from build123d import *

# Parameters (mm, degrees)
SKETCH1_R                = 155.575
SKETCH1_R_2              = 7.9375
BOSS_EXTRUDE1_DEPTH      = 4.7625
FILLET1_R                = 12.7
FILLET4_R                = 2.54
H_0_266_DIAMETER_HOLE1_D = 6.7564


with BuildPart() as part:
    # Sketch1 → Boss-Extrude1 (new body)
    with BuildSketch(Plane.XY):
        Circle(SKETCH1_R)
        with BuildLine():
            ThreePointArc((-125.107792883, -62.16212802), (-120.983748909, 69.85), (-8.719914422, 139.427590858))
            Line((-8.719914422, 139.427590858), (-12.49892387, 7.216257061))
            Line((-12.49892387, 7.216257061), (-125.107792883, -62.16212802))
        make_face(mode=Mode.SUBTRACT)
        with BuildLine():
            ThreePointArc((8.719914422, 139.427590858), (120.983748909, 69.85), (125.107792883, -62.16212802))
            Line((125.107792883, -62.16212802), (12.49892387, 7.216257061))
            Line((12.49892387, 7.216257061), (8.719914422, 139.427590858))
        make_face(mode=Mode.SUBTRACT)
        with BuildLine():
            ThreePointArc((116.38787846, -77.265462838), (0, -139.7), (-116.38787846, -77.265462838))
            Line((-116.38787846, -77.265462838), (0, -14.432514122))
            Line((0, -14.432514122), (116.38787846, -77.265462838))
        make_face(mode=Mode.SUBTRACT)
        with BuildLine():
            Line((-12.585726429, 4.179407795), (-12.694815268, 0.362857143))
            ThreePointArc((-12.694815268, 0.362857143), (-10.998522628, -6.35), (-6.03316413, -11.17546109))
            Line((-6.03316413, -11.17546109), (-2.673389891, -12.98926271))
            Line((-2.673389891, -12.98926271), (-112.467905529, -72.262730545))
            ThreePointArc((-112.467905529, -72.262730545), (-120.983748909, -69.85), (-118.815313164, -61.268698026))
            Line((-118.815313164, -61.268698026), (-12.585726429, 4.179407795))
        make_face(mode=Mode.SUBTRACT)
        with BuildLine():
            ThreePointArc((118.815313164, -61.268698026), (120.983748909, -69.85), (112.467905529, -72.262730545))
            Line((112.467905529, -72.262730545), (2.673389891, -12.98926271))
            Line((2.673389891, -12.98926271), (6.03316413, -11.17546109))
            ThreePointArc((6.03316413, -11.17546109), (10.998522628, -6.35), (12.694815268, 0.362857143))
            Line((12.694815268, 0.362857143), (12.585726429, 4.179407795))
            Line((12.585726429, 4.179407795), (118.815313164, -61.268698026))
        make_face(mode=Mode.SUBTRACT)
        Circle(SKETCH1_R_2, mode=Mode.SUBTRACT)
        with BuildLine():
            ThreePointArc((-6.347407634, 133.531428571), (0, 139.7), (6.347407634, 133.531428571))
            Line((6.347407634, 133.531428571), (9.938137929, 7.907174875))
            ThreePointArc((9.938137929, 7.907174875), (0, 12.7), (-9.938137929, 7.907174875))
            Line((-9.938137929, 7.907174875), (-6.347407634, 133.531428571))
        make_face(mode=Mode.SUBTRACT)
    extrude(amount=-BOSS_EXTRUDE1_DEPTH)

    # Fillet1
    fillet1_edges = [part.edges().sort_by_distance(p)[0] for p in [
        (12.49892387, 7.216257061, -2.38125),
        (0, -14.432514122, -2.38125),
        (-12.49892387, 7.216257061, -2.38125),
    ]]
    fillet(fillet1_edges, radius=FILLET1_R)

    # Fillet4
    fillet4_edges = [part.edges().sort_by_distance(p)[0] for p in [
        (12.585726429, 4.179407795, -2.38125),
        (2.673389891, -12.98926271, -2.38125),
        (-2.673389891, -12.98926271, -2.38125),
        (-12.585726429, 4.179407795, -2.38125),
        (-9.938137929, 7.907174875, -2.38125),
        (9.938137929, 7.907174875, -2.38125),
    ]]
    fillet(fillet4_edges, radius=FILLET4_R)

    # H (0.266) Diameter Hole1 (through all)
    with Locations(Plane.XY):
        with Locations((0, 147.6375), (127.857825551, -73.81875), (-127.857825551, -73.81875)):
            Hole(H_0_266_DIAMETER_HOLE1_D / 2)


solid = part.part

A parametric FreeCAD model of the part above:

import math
import FreeCAD as App
import Part
import Sketcher

V = App.Vector
Q = App.Units.Quantity


def edges_at(feature, points):
    """Names of the edges that pass closest to the given points."""
    edges = feature.Shape.Edges
    near = lambda p: min(range(len(edges)), key=lambda i: edges[i].distToShape(Part.Vertex(*p))[0])
    return sorted({f"Edge{near(p) + 1}" for p in points})

doc = App.newDocument("Part")
body = doc.addObject("PartDesign::Body", "Body")

# Sketch on XY plane
sketch1 = doc.addObject("Sketcher::SketchObject", "Sketch")
body.addObject(sketch1)
sketch1.AttachmentSupport = (doc.XY_Plane, [""])
sketch1.MapMode = "FlatFace"
sketch1.addGeometry(Part.Circle(V(0, 0, 0), V(0, 0, 1), 155.6), False)
sketch1.addGeometry(Part.LineSegment(V(-118.8, -61.3, 0), V(-12.6, 4.2, 0)), False)
sketch1.addGeometry(Part.LineSegment(V(-12.6, 4.2, 0), V(-12.7, 0.4, 0)), False)
sketch1.addGeometry(Part.ArcOfCircle(Part.Circle(V(0, 0, 0), V(0, 0, 1), 12.7), math.radians(178), math.radians(242)), False)
sketch1.addGeometry(Part.LineSegment(V(-6, -11.2, 0), V(-2.7, -13, 0)), False)
sketch1.addGeometry(Part.LineSegment(V(-2.7, -13, 0), V(-112.5, -72.3, 0)), False)
sketch1.addGeometry(Part.ArcOfCircle(Part.Circle(V(-115.5, -66.7, 0), V(0, 0, 1), 6.3), math.radians(122), math.radians(298)), False)
sketch1.addGeometry(Part.LineSegment(V(0, -14.4, 0), V(116.4, -77.3, 0)), False)
sketch1.addGeometry(Part.ArcOfCircle(Part.Circle(V(0, 0, 0), V(0, 0, 1), 139.7), math.radians(-146), math.radians(-34)), False)
sketch1.addGeometry(Part.LineSegment(V(-116.4, -77.3, 0), V(0, -14.4, 0)), False)
sketch1.addGeometry(Part.LineSegment(V(12.6, 4.2, 0), V(118.8, -61.3, 0)), False)
sketch1.addGeometry(Part.ArcOfCircle(Part.Circle(V(115.5, -66.7, 0), V(0, 0, 1), 6.3), math.radians(-118), math.radians(58)), False)
sketch1.addGeometry(Part.LineSegment(V(112.5, -72.3, 0), V(2.7, -13, 0)), False)
sketch1.addGeometry(Part.LineSegment(V(2.7, -13, 0), V(6, -11.2, 0)), False)
sketch1.addGeometry(Part.ArcOfCircle(Part.Circle(V(0, 0, 0), V(0, 0, 1), 12.7), math.radians(-62), math.radians(2)), False)
sketch1.addGeometry(Part.LineSegment(V(12.7, 0.4, 0), V(12.6, 4.2, 0)), False)
sketch1.addGeometry(Part.LineSegment(V(-12.5, 7.2, 0), V(-125.1, -62.2, 0)), False)
sketch1.addGeometry(Part.ArcOfCircle(Part.Circle(V(0, 0, 0), V(0, 0, 1), 139.7), math.radians(94), math.radians(206)), False)
sketch1.addGeometry(Part.LineSegment(V(-8.7, 139.4, 0), V(-12.5, 7.2, 0)), False)
sketch1.addGeometry(Part.Circle(V(0, 0, 0), V(0, 0, 1), 7.9), False)
sketch1.addGeometry(Part.LineSegment(V(12.5, 7.2, 0), V(8.7, 139.4, 0)), False)
sketch1.addGeometry(Part.ArcOfCircle(Part.Circle(V(0, 0, 0), V(0, 0, 1), 139.7), math.radians(-26), math.radians(86)), False)
sketch1.addGeometry(Part.LineSegment(V(125.1, -62.2, 0), V(12.5, 7.2, 0)), False)
sketch1.addGeometry(Part.LineSegment(V(-9.9, 7.9, 0), V(-6.3, 133.5, 0)), False)
sketch1.addGeometry(Part.ArcOfCircle(Part.Circle(V(0, 133.3, 0), V(0, 0, 1), 6.3), math.radians(2), math.radians(178)), False)
sketch1.addGeometry(Part.LineSegment(V(6.3, 133.5, 0), V(9.9, 7.9, 0)), False)
sketch1.addGeometry(Part.ArcOfCircle(Part.Circle(V(0, 0, 0), V(0, 0, 1), 12.7), math.radians(39), math.radians(141)), False)
sketch1.addConstraint(Sketcher.Constraint("Coincident", 1, 2, 2, 1))
sketch1.addConstraint(Sketcher.Constraint("Tangent", 2, 2, 3, 1))
sketch1.addConstraint(Sketcher.Constraint("Tangent", 3, 2, 4, 1))
sketch1.addConstraint(Sketcher.Constraint("Coincident", 4, 2, 5, 1))
sketch1.addConstraint(Sketcher.Constraint("Tangent", 5, 2, 6, 2))
sketch1.addConstraint(Sketcher.Constraint("Tangent", 6, 1, 1, 1))
sketch1.addConstraint(Sketcher.Constraint("Coincident", 7, 2, 8, 2))
sketch1.addConstraint(Sketcher.Constraint("Coincident", 8, 1, 9, 1))
sketch1.addConstraint(Sketcher.Constraint("Coincident", 9, 2, 7, 1))
sketch1.addConstraint(Sketcher.Constraint("Tangent", 10, 2, 11, 2))
sketch1.addConstraint(Sketcher.Constraint("Tangent", 11, 1, 12, 1))
sketch1.addConstraint(Sketcher.Constraint("Coincident", 12, 2, 13, 1))
sketch1.addConstraint(Sketcher.Constraint("Tangent", 13, 2, 14, 1))
sketch1.addConstraint(Sketcher.Constraint("Tangent", 14, 2, 15, 1))
sketch1.addConstraint(Sketcher.Constraint("Coincident", 15, 2, 10, 1))
sketch1.addConstraint(Sketcher.Constraint("Coincident", 16, 2, 17, 2))
sketch1.addConstraint(Sketcher.Constraint("Coincident", 17, 1, 18, 1))
sketch1.addConstraint(Sketcher.Constraint("Coincident", 18, 2, 16, 1))
sketch1.addConstraint(Sketcher.Constraint("Coincident", 20, 2, 21, 2))
sketch1.addConstraint(Sketcher.Constraint("Coincident", 21, 1, 22, 1))
sketch1.addConstraint(Sketcher.Constraint("Coincident", 22, 2, 20, 1))
sketch1.addConstraint(Sketcher.Constraint("Tangent", 23, 2, 24, 2))
sketch1.addConstraint(Sketcher.Constraint("Tangent", 24, 1, 25, 1))
sketch1.addConstraint(Sketcher.Constraint("Coincident", 25, 2, 26, 1))
sketch1.addConstraint(Sketcher.Constraint("Coincident", 26, 2, 23, 1))
sketch1.addConstraint(Sketcher.Constraint("Coincident", 0, 3, -1, 1))
sketch1.addConstraint(Sketcher.Constraint("Coincident", 3, 3, -1, 1))
sketch1.addConstraint(Sketcher.Constraint("Coincident", 8, 3, -1, 1))
sketch1.addConstraint(Sketcher.Constraint("Coincident", 14, 3, -1, 1))
sketch1.addConstraint(Sketcher.Constraint("Coincident", 17, 3, -1, 1))
sketch1.addConstraint(Sketcher.Constraint("Coincident", 19, 3, -1, 1))
sketch1.addConstraint(Sketcher.Constraint("Coincident", 21, 3, -1, 1))
sketch1.addConstraint(Sketcher.Constraint("Coincident", 26, 3, -1, 1))
sketch1.addConstraint(Sketcher.Constraint("Equal", 6, 11))
sketch1.addConstraint(Sketcher.Constraint("Equal", 3, 14))
sketch1.addConstraint(Sketcher.Constraint("Equal", 8, 17))
sketch1.addConstraint(Sketcher.Constraint("Equal", 17, 21))
sketch1.addConstraint(Sketcher.Constraint("Equal", 11, 24))
sketch1.addConstraint(Sketcher.Constraint("Equal", 14, 26))
sketch1.addConstraint(Sketcher.Constraint("Symmetric", 6, 3, 11, 3, -2))
sketch1.addConstraint(Sketcher.Constraint("Symmetric", 4, 2, 12, 2, -2))
sketch1.addConstraint(Sketcher.Constraint("Symmetric", 1, 2, 15, 2, -2))
sketch1.addConstraint(Sketcher.Constraint("Symmetric", 18, 2, 22, 2, -2))
sketch1.addConstraint(Sketcher.Constraint("Symmetric", 23, 2, 24, 1, -2))
sketch1.addConstraint(Sketcher.Constraint("PointOnObject", 9, 2, -2))
sketch1.addConstraint(Sketcher.Constraint("Parallel", 4, 7))
sketch1.addConstraint(Sketcher.Constraint("Parallel", 5, 9))
sketch1.addConstraint(Sketcher.Constraint("Parallel", 7, 12))
sketch1.addConstraint(Sketcher.Constraint("Parallel", 1, 16))
sketch1.addConstraint(Sketcher.Constraint("Parallel", 2, 18))
sketch1.addConstraint(Sketcher.Constraint("Parallel", 15, 20))
sketch1.addConstraint(Sketcher.Constraint("Parallel", 10, 22))
sketch1.addConstraint(Sketcher.Constraint("Parallel", 18, 23))
sketch1.addConstraint(Sketcher.Constraint("Equal", 2, 4))
sketch1.addConstraint(Sketcher.Constraint("Equal", 1, 5))
sketch1.addConstraint(Sketcher.Constraint("Equal", 9, 16))
sketch1.addConstraint(Sketcher.Constraint("Equal", 16, 18))
sketch1.addConstraint(Sketcher.Constraint("Radius", 3, Q("0.5 in")))
sketch1.addConstraint(Sketcher.Constraint("Radius", 8, Q("5.5 in")))
sketch1.addConstraint(Sketcher.Constraint("Diameter", 0, Q("12.25 in")))
sketch1.addConstraint(Sketcher.Constraint("Radius", 6, Q("0.25 in")))
sketch1.addConstraint(Sketcher.Constraint("Diameter", 19, Q("0.625 in")))
sketch1.addConstraint(Sketcher.Constraint("DistanceY", -1, 1, 24, 3, Q("5.25 in")))
sketch1.addConstraint(Sketcher.Constraint("DistanceY", 6, 3, -1, 1, Q("2.625 in")))
sketch1.addConstraint(Sketcher.Constraint("DistanceX", -1, 1, 7, 2, Q("4.5821999 in")))
sketch1.addConstraint(Sketcher.Constraint("DistanceY", 6, 1, -1, 1, Q("61.268698 mm")))
sketch1.addConstraint(Sketcher.Constraint("DistanceY", 4, 2, 3, 2, Q("1.813802 mm")))
pad1 = doc.addObject("PartDesign::Pad", "Pad")
body.addObject(pad1)
pad1.Profile = sketch1
pad1.Length = Q("0.1875 in")
pad1.Reversed = True
doc.recompute()

fillet = doc.addObject("PartDesign::Fillet", "Fillet")
body.addObject(fillet)
fillet.Base = (pad1, edges_at(pad1, [(12.499, 7.216, -2.381), (0, -14.433, -2.381), (-12.499, 7.216, -2.381)]))
fillet.Radius = Q("0.5 in")
doc.recompute()

fillet2 = doc.addObject("PartDesign::Fillet", "Fillet001")
body.addObject(fillet2)
fillet2.Base = (fillet, edges_at(fillet, [
    (12.586, 4.179, -2.381),
    (2.673, -12.989, -2.381),
    (-2.673, -12.989, -2.381),
    (-12.586, 4.179, -2.381),
    (-9.938, 7.907, -2.381),
    (9.938, 7.907, -2.381),
]))
fillet2.Radius = Q("0.1 in")

# Sketch on XY plane
sketch2 = doc.addObject("Sketcher::SketchObject", "Sketch001")
body.addObject(sketch2)
sketch2.AttachmentSupport = (doc.XY_Plane, [""])
sketch2.MapMode = "FlatFace"
sketch2.addGeometry(Part.Circle(V(0, 147.6, 0), V(0, 0, 1), 3.4), False)
sketch2.addGeometry(Part.Circle(V(127.9, -73.8, 0), V(0, 0, 1), 3.4), False)
sketch2.addGeometry(Part.Circle(V(-127.9, -73.8, 0), V(0, 0, 1), 3.4), False)
sketch2.addConstraint(Sketcher.Constraint("Equal", 0, 1))
sketch2.addConstraint(Sketcher.Constraint("Equal", 1, 2))
sketch2.addConstraint(Sketcher.Constraint("Symmetric", 1, 3, 2, 3, -2))
sketch2.addConstraint(Sketcher.Constraint("PointOnObject", 0, 3, -2))
sketch2.addConstraint(Sketcher.Constraint("Diameter", 0, Q("0.266 in")))
sketch2.addConstraint(Sketcher.Constraint("DistanceY", -1, 1, 0, 3, Q("5.8125 in")))
sketch2.addConstraint(Sketcher.Constraint("DistanceY", 1, 3, -1, 1, Q("2.90625 in")))
sketch2.addConstraint(Sketcher.Constraint("DistanceX", 2, 3, 1, 3, Q("255.715651 mm")))
doc.recompute()
hole = doc.addObject("PartDesign::Hole", "Hole")
body.addObject(hole)
hole.Profile = sketch2
hole.ThreadType = "None"
hole.Diameter = Q("0.266 in")
hole.DepthType = "ThroughAll"

doc.recompute()
